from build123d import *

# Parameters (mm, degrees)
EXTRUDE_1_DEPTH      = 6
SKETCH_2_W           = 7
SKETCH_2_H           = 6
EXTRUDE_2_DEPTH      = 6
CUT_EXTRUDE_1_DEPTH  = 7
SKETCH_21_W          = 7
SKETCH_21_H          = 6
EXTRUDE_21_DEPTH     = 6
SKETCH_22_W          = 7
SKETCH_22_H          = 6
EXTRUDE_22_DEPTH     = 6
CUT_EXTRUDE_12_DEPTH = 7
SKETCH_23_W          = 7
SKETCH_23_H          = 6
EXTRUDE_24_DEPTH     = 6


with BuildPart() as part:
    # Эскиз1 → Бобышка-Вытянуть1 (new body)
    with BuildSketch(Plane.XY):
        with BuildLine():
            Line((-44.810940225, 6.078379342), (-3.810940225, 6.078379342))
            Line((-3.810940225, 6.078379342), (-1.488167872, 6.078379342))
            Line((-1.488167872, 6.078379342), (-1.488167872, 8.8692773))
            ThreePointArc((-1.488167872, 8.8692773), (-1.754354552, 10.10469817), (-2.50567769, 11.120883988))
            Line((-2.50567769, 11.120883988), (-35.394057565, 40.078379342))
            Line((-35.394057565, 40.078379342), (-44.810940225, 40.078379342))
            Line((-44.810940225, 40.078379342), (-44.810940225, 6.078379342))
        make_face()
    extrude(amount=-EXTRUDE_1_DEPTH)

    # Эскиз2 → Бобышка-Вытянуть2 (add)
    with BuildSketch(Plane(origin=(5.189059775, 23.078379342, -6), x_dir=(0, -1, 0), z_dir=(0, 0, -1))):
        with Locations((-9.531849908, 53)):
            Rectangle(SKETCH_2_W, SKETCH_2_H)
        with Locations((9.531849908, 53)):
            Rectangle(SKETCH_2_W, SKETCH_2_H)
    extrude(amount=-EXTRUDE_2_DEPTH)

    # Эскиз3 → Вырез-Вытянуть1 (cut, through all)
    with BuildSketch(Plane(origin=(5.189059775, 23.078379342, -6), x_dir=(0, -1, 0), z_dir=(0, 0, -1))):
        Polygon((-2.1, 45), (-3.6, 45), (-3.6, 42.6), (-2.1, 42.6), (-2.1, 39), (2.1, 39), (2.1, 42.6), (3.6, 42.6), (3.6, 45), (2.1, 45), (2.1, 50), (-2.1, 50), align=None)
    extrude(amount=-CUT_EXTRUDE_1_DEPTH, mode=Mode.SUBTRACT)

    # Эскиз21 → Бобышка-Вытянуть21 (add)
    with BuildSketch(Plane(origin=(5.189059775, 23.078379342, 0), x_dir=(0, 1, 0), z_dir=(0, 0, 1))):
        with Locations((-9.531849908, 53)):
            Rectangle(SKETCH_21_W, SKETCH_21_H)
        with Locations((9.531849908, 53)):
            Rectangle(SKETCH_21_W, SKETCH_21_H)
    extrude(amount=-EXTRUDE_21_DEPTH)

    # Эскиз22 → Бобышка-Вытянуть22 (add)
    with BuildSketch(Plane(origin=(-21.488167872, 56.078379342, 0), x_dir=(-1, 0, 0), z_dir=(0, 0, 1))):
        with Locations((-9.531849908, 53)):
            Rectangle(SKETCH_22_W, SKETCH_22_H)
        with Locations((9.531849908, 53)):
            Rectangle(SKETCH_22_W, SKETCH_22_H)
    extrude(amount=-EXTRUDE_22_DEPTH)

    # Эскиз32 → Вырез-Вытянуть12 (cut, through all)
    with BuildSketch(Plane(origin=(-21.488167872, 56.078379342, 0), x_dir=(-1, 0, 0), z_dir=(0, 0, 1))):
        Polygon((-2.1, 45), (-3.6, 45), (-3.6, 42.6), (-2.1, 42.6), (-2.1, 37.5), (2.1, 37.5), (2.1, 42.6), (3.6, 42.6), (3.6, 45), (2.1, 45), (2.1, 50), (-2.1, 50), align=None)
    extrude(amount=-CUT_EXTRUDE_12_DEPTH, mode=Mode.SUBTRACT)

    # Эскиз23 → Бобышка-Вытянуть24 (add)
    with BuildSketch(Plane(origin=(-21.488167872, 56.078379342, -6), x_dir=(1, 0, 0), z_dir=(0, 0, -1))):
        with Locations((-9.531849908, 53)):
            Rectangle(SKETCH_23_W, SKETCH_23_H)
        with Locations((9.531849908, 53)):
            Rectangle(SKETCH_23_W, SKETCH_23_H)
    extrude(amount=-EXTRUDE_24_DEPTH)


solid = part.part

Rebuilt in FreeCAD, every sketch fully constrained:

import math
import FreeCAD as App
import Part
import Sketcher
Q = App.Units.Quantity

doc = App.newDocument("Part")
body = doc.addObject("PartDesign::Body", "Body")

# Sketch on XY plane
sketch1 = body.newObject("Sketcher::SketchObject", "Sketch")
sketch1.AttachmentSupport = (doc.getObject("XY_Plane"), [""])
sketch1.MapMode = "FlatFace"
sketch1.addGeometry(Part.LineSegment(App.Vector(-44.81094, 6.078379, 0), App.Vector(-1.488168, 6.078379, 0)), False)
sketch1.addGeometry(Part.LineSegment(App.Vector(-1.488168, 6.078379, 0), App.Vector(-1.488168, 8.869277, 0)), False)
sketch1.addGeometry(Part.ArcOfCircle(Part.Circle(App.Vector(-4.488168, 8.869277, 0), App.Vector(0, 0, 1), 3), math.radians(0), math.radians(48.636791)), False)
sketch1.addGeometry(Part.LineSegment(App.Vector(-2.505678, 11.120884, 0), App.Vector(-35.394058, 40.078379, 0)), False)
sketch1.addGeometry(Part.LineSegment(App.Vector(-35.394058, 40.078379, 0), App.Vector(-44.81094, 40.078379, 0)), False)
sketch1.addGeometry(Part.LineSegment(App.Vector(-44.81094, 40.078379, 0), App.Vector(-44.81094, 6.078379, 0)), False)
sketch1.addConstraint(Sketcher.Constraint("Coincident", 0, 2, 1, 1))
sketch1.addConstraint(Sketcher.Constraint("Tangent", 1, 2, 2, 1))
sketch1.addConstraint(Sketcher.Constraint("Tangent", 2, 2, 3, 1))
sketch1.addConstraint(Sketcher.Constraint("Coincident", 3, 2, 4, 1))
sketch1.addConstraint(Sketcher.Constraint("Coincident", 4, 2, 5, 1))
sketch1.addConstraint(Sketcher.Constraint("Coincident", 5, 2, 0, 1))
sketch1.addConstraint(Sketcher.Constraint("Horizontal", 0))
sketch1.addConstraint(Sketcher.Constraint("Vertical", 1))
sketch1.addConstraint(Sketcher.Constraint("Horizontal", 4))
sketch1.addConstraint(Sketcher.Constraint("Vertical", 5))
sketch1.addConstraint(Sketcher.Constraint("Radius", 2, Q("3 mm")))
sketch1.addConstraint(Sketcher.Constraint("DistanceY", 5, 2, 5, 1, Q("34 mm")))
sketch1.addConstraint(Sketcher.Constraint("DistanceX", 0, 1, 0, 2, Q("43.322772 mm")))
sketch1.addConstraint(Sketcher.Constraint("DistanceX", 4, 2, 4, 1, Q("9.416883 mm")))
sketch1.addConstraint(Sketcher.Constraint("DistanceY", 1, 1, 1, 2, Q("2.790898 mm")))
sketch1.addConstraint(Sketcher.Constraint("DistanceY", -1, 1, 0, 2, Q("6.078379 mm")))
sketch1.addConstraint(Sketcher.Constraint("DistanceX", 4, 2, -1, 1, Q("44.81094 mm")))
pad1 = body.newObject("PartDesign::Pad", "Pad")
pad1.Profile = sketch1
pad1.Length = 6
pad1.Reversed = True

# Sketch on XY plane
sketch2 = body.newObject("Sketcher::SketchObject", "Sketch001")
sketch2.AttachmentSupport = (doc.getObject("XY_Plane"), [""])
sketch2.MapMode = "FlatFace"
sketch2.AttachmentOffset = App.Placement(App.Vector(0, 0, -6), App.Rotation())
sketch2.addGeometry(Part.LineSegment(App.Vector(-50.81094, 36.110229, 0), App.Vector(-44.81094, 36.110229, 0)), False)
sketch2.addGeometry(Part.LineSegment(App.Vector(-44.81094, 36.110229, 0), App.Vector(-44.81094, 29.110229, 0)), False)
sketch2.addGeometry(Part.LineSegment(App.Vector(-44.81094, 29.110229, 0), App.Vector(-50.81094, 29.110229, 0)), False)
sketch2.addGeometry(Part.LineSegment(App.Vector(-50.81094, 29.110229, 0), App.Vector(-50.81094, 36.110229, 0)), False)
sketch2.addGeometry(Part.LineSegment(App.Vector(-50.81094, 17.046529, 0), App.Vector(-44.81094, 17.046529, 0)), False)
sketch2.addGeometry(Part.LineSegment(App.Vector(-44.81094, 17.046529, 0), App.Vector(-44.81094, 10.046529, 0)), False)
sketch2.addGeometry(Part.LineSegment(App.Vector(-44.81094, 10.046529, 0), App.Vector(-50.81094, 10.046529, 0)), False)
sketch2.addGeometry(Part.LineSegment(App.Vector(-50.81094, 10.046529, 0), App.Vector(-50.81094, 17.046529, 0)), False)
sketch2.addConstraint(Sketcher.Constraint("Coincident", 0, 2, 1, 1))
sketch2.addConstraint(Sketcher.Constraint("Coincident", 1, 2, 2, 1))
sketch2.addConstraint(Sketcher.Constraint("Coincident", 2, 2, 3, 1))
sketch2.addConstraint(Sketcher.Constraint("Coincident", 3, 2, 0, 1))
sketch2.addConstraint(Sketcher.Constraint("Coincident", 4, 2, 5, 1))
sketch2.addConstraint(Sketcher.Constraint("Coincident", 5, 2, 6, 1))
sketch2.addConstraint(Sketcher.Constraint("Coincident", 6, 2, 7, 1))
sketch2.addConstraint(Sketcher.Constraint("Coincident", 7, 2, 4, 1))
sketch2.addConstraint(Sketcher.Constraint("Horizontal", 0))
sketch2.addConstraint(Sketcher.Constraint("Vertical", 1))
sketch2.addConstraint(Sketcher.Constraint("Horizontal", 2))
sketch2.addConstraint(Sketcher.Constraint("Vertical", 3))
sketch2.addConstraint(Sketcher.Constraint("Horizontal", 4))
sketch2.addConstraint(Sketcher.Constraint("Vertical", 5))
sketch2.addConstraint(Sketcher.Constraint("Horizontal", 6))
sketch2.addConstraint(Sketcher.Constraint("Vertical", 7))
sketch2.addConstraint(Sketcher.Constraint("Vertical", 1, 2, 4, 2))
sketch2.addConstraint(Sketcher.Constraint("Vertical", 3, 2, 6, 2))
sketch2.addConstraint(Sketcher.Constraint("Equal", 3, 5))
sketch2.addConstraint(Sketcher.Constraint("DistanceX", 0, 1, 0, 2, Q("6 mm")))
sketch2.addConstraint(Sketcher.Constraint("DistanceY", 1, 2, 1, 1, Q("7 mm")))
sketch2.addConstraint(Sketcher.Constraint("DistanceY", 4, 2, 1, 2, Q("12.0637 mm")))
sketch2.addConstraint(Sketcher.Constraint("DistanceX", 0, 2, -1, 1, Q("44.81094 mm")))
sketch2.addConstraint(Sketcher.Constraint("DistanceY", -1, 1, 0, 2, Q("36.110229 mm")))
pad2 = body.newObject("PartDesign::Pad", "Pad001")
pad2.Profile = sketch2
pad2.Length = 6

# Sketch on XY plane
sketch3 = body.newObject("Sketcher::SketchObject", "Sketch002")
sketch3.AttachmentSupport = (doc.getObject("XY_Plane"), [""])
sketch3.MapMode = "FlatFace"
sketch3.AttachmentOffset = App.Placement(App.Vector(0, 0, -6), App.Rotation())
sketch3.addGeometry(Part.LineSegment(App.Vector(-39.81094, 25.178379, 0), App.Vector(-39.81094, 26.678379, 0)), False)
sketch3.addGeometry(Part.LineSegment(App.Vector(-39.81094, 26.678379, 0), App.Vector(-37.41094, 26.678379, 0)), False)
sketch3.addGeometry(Part.LineSegment(App.Vector(-37.41094, 26.678379, 0), App.Vector(-37.41094, 25.178379, 0)), False)
sketch3.addGeometry(Part.LineSegment(App.Vector(-37.41094, 25.178379, 0), App.Vector(-33.81094, 25.178379, 0)), False)
sketch3.addGeometry(Part.LineSegment(App.Vector(-33.81094, 25.178379, 0), App.Vector(-33.81094, 20.978379, 0)), False)
sketch3.addGeometry(Part.LineSegment(App.Vector(-33.81094, 20.978379, 0), App.Vector(-37.41094, 20.978379, 0)), False)
sketch3.addGeometry(Part.LineSegment(App.Vector(-37.41094, 20.978379, 0), App.Vector(-37.41094, 19.478379, 0)), False)
sketch3.addGeometry(Part.LineSegment(App.Vector(-37.41094, 19.478379, 0), App.Vector(-39.81094, 19.478379, 0)), False)
sketch3.addGeometry(Part.LineSegment(App.Vector(-39.81094, 19.478379, 0), App.Vector(-39.81094, 20.978379, 0)), False)
sketch3.addGeometry(Part.LineSegment(App.Vector(-39.81094, 20.978379, 0), App.Vector(-44.81094, 20.978379, 0)), False)
sketch3.addGeometry(Part.LineSegment(App.Vector(-44.81094, 20.978379, 0), App.Vector(-44.81094, 25.178379, 0)), False)
sketch3.addGeometry(Part.LineSegment(App.Vector(-44.81094, 25.178379, 0), App.Vector(-39.81094, 25.178379, 0)), False)
sketch3.addConstraint(Sketcher.Constraint("Coincident", 0, 2, 1, 1))
sketch3.addConstraint(Sketcher.Constraint("Coincident", 1, 2, 2, 1))
sketch3.addConstraint(Sketcher.Constraint("Coincident", 2, 2, 3, 1))
sketch3.addConstraint(Sketcher.Constraint("Coincident", 3, 2, 4, 1))
sketch3.addConstraint(Sketcher.Constraint("Coincident", 4, 2, 5, 1))
sketch3.addConstraint(Sketcher.Constraint("Coincident", 5, 2, 6, 1))
sketch3.addConstraint(Sketcher.Constraint("Coincident", 6, 2, 7, 1))
sketch3.addConstraint(Sketcher.Constraint("Coincident", 7, 2, 8, 1))
sketch3.addConstraint(Sketcher.Constraint("Coincident", 8, 2, 9, 1))
sketch3.addConstraint(Sketcher.Constraint("Coincident", 9, 2, 10, 1))
sketch3.addConstraint(Sketcher.Constraint("Coincident", 10, 2, 11, 1))
sketch3.addConstraint(Sketcher.Constraint("Coincident", 11, 2, 0, 1))
sketch3.addConstraint(Sketcher.Constraint("Vertical", 0))
sketch3.addConstraint(Sketcher.Constraint("Horizontal", 1))
sketch3.addConstraint(Sketcher.Constraint("Vertical", 2))
sketch3.addConstraint(Sketcher.Constraint("Horizontal", 3))
sketch3.addConstraint(Sketcher.Constraint("Vertical", 4))
sketch3.addConstraint(Sketcher.Constraint("Horizontal", 5))
sketch3.addConstraint(Sketcher.Constraint("Vertical", 6))
sketch3.addConstraint(Sketcher.Constraint("Horizontal", 7))
sketch3.addConstraint(Sketcher.Constraint("Vertical", 8))
sketch3.addConstraint(Sketcher.Constraint("Horizontal", 9))
sketch3.addConstraint(Sketcher.Constraint("Vertical", 10))
sketch3.addConstraint(Sketcher.Constraint("Horizontal", 11))
sketch3.addConstraint(Sketcher.Constraint("Horizontal", 5, 2, 8, 2))
sketch3.addConstraint(Sketcher.Constraint("Horizontal", 3, 2, 10, 2))
sketch3.addConstraint(Sketcher.Constraint("Vertical", 2, 2, 5, 2))
sketch3.addConstraint(Sketcher.Constraint("Vertical", 0, 2, 7, 2))
sketch3.addConstraint(Sketcher.Constraint("Equal", 2, 6))
sketch3.addConstraint(Sketcher.Constraint("DistanceX", 9, 2, 9, 1, Q("5 mm")))
sketch3.addConstraint(Sketcher.Constraint("DistanceX", 1, 1, 1, 2, Q("2.4 mm")))
sketch3.addConstraint(Sketcher.Constraint("DistanceX", 3, 1, 3, 2, Q("3.6 mm")))
sketch3.addConstraint(Sketcher.Constraint("DistanceY", 0, 1, 0, 2, Q("1.5 mm")))
sketch3.addConstraint(Sketcher.Constraint("DistanceY", 4, 2, 4, 1, Q("4.2 mm")))
sketch3.addConstraint(Sketcher.Constraint("DistanceX", 0, 2, -1, 1, Q("39.81094 mm")))
sketch3.addConstraint(Sketcher.Constraint("DistanceY", -1, 1, 0, 2, Q("26.678379 mm")))
pocket1 = body.newObject("PartDesign::Pocket", "Pocket")
pocket1.Profile = sketch3
pocket1.Type = "ThroughAll"
pocket1.Reversed = True

# Sketch on XY plane
sketch4 = body.newObject("Sketcher::SketchObject", "Sketch003")
sketch4.AttachmentSupport = (doc.getObject("XY_Plane"), [""])
sketch4.MapMode = "FlatFace"
sketch4.addGeometry(Part.LineSegment(App.Vector(-50.81094, 10.046529, 0), App.Vector(-44.81094, 10.046529, 0)), False)
sketch4.addGeometry(Part.LineSegment(App.Vector(-44.81094, 10.046529, 0), App.Vector(-44.81094, 17.046529, 0)), False)
sketch4.addGeometry(Part.LineSegment(App.Vector(-44.81094, 17.046529, 0), App.Vector(-50.81094, 17.046529, 0)), False)
sketch4.addGeometry(Part.LineSegment(App.Vector(-50.81094, 17.046529, 0), App.Vector(-50.81094, 10.046529, 0)), False)
sketch4.addGeometry(Part.LineSegment(App.Vector(-50.81094, 29.110229, 0), App.Vector(-44.81094, 29.110229, 0)), False)
sketch4.addGeometry(Part.LineSegment(App.Vector(-44.81094, 29.110229, 0), App.Vector(-44.81094, 36.110229, 0)), False)
sketch4.addGeometry(Part.LineSegment(App.Vector(-44.81094, 36.110229, 0), App.Vector(-50.81094, 36.110229, 0)), False)
sketch4.addGeometry(Part.LineSegment(App.Vector(-50.81094, 36.110229, 0), App.Vector(-50.81094, 29.110229, 0)), False)
sketch4.addConstraint(Sketcher.Constraint("Coincident", 0, 2, 1, 1))
sketch4.addConstraint(Sketcher.Constraint("Coincident", 1, 2, 2, 1))
sketch4.addConstraint(Sketcher.Constraint("Coincident", 2, 2, 3, 1))
sketch4.addConstraint(Sketcher.Constraint("Coincident", 3, 2, 0, 1))
sketch4.addConstraint(Sketcher.Constraint("Coincident", 4, 2, 5, 1))
sketch4.addConstraint(Sketcher.Constraint("Coincident", 5, 2, 6, 1))
sketch4.addConstraint(Sketcher.Constraint("Coincident", 6, 2, 7, 1))
sketch4.addConstraint(Sketcher.Constraint("Coincident", 7, 2, 4, 1))
sketch4.addConstraint(Sketcher.Constraint("Horizontal", 0))
sketch4.addConstraint(Sketcher.Constraint("Vertical", 1))
sketch4.addConstraint(Sketcher.Constraint("Horizontal", 2))
sketch4.addConstraint(Sketcher.Constraint("Vertical", 3))
sketch4.addConstraint(Sketcher.Constraint("Horizontal", 4))
sketch4.addConstraint(Sketcher.Constraint("Vertical", 5))
sketch4.addConstraint(Sketcher.Constraint("Horizontal", 6))
sketch4.addConstraint(Sketcher.Constraint("Vertical", 7))
sketch4.addConstraint(Sketcher.Constraint("Vertical", 1, 2, 4, 2))
sketch4.addConstraint(Sketcher.Constraint("Vertical", 3, 2, 6, 2))
sketch4.addConstraint(Sketcher.Constraint("Equal", 3, 5))
sketch4.addConstraint(Sketcher.Constraint("DistanceX", 0, 1, 0, 2, Q("6 mm")))
sketch4.addConstraint(Sketcher.Constraint("DistanceY", 1, 1, 1, 2, Q("7 mm")))
sketch4.addConstraint(Sketcher.Constraint("DistanceY", 1, 2, 4, 2, Q("12.0637 mm")))
sketch4.addConstraint(Sketcher.Constraint("DistanceX", 0, 2, -1, 1, Q("44.81094 mm")))
sketch4.addConstraint(Sketcher.Constraint("DistanceY", -1, 1, 0, 2, Q("10.046529 mm")))
pad3 = body.newObject("PartDesign::Pad", "Pad002")
pad3.Profile = sketch4
pad3.Length = 6
pad3.Reversed = True

# Sketch on XY plane
sketch5 = body.newObject("Sketcher::SketchObject", "Sketch004")
sketch5.AttachmentSupport = (doc.getObject("XY_Plane"), [""])
sketch5.MapMode = "FlatFace"
sketch5.addGeometry(Part.LineSegment(App.Vector(-8.456318, 0.078379, 0), App.Vector(-8.456318, 6.078379, 0)), False)
sketch5.addGeometry(Part.LineSegment(App.Vector(-8.456318, 6.078379, 0), App.Vector(-15.456318, 6.078379, 0)), False)
sketch5.addGeometry(Part.LineSegment(App.Vector(-15.456318, 6.078379, 0), App.Vector(-15.456318, 0.078379, 0)), False)
sketch5.addGeometry(Part.LineSegment(App.Vector(-15.456318, 0.078379, 0), App.Vector(-8.456318, 0.078379, 0)), False)
sketch5.addGeometry(Part.LineSegment(App.Vector(-27.520018, 0.078379, 0), App.Vector(-27.520018, 6.078379, 0)), False)
sketch5.addGeometry(Part.LineSegment(App.Vector(-27.520018, 6.078379, 0), App.Vector(-34.520018, 6.078379, 0)), False)
sketch5.addGeometry(Part.LineSegment(App.Vector(-34.520018, 6.078379, 0), App.Vector(-34.520018, 0.078379, 0)), False)
sketch5.addGeometry(Part.LineSegment(App.Vector(-34.520018, 0.078379, 0), App.Vector(-27.520018, 0.078379, 0)), False)
sketch5.addConstraint(Sketcher.Constraint("Coincident", 0, 2, 1, 1))
sketch5.addConstraint(Sketcher.Constraint("Coincident", 1, 2, 2, 1))
sketch5.addConstraint(Sketcher.Constraint("Coincident", 2, 2, 3, 1))
sketch5.addConstraint(Sketcher.Constraint("Coincident", 3, 2, 0, 1))
sketch5.addConstraint(Sketcher.Constraint("Coincident", 4, 2, 5, 1))
sketch5.addConstraint(Sketcher.Constraint("Coincident", 5, 2, 6, 1))
sketch5.addConstraint(Sketcher.Constraint("Coincident", 6, 2, 7, 1))
sketch5.addConstraint(Sketcher.Constraint("Coincident", 7, 2, 4, 1))
sketch5.addConstraint(Sketcher.Constraint("Vertical", 0))
sketch5.addConstraint(Sketcher.Constraint("Horizontal", 1))
sketch5.addConstraint(Sketcher.Constraint("Vertical", 2))
sketch5.addConstraint(Sketcher.Constraint("Horizontal", 3))
sketch5.addConstraint(Sketcher.Constraint("Vertical", 4))
sketch5.addConstraint(Sketcher.Constraint("Horizontal", 5))
sketch5.addConstraint(Sketcher.Constraint("Vertical", 6))
sketch5.addConstraint(Sketcher.Constraint("Horizontal", 7))
sketch5.addConstraint(Sketcher.Constraint("Horizontal", 1, 2, 4, 2))
sketch5.addConstraint(Sketcher.Constraint("Horizontal", 3, 2, 6, 2))
sketch5.addConstraint(Sketcher.Constraint("Equal", 3, 5))
sketch5.addConstraint(Sketcher.Constraint("DistanceX", 1, 2, 1, 1, Q("7 mm")))
sketch5.addConstraint(Sketcher.Constraint("DistanceY", 0, 1, 0, 2, Q("6 mm")))
sketch5.addConstraint(Sketcher.Constraint("DistanceX", 4, 2, 1, 2, Q("12.0637 mm")))
sketch5.addConstraint(Sketcher.Constraint("DistanceY", -1, 1, 0, 2, Q("6.078379 mm")))
sketch5.addConstraint(Sketcher.Constraint("DistanceX", 0, 2, -1, 1, Q("8.456318 mm")))
pad4 = body.newObject("PartDesign::Pad", "Pad003")
pad4.Profile = sketch5
pad4.Length = 6
pad4.Reversed = True

# Sketch on XY plane
sketch6 = body.newObject("Sketcher::SketchObject", "Sketch005")
sketch6.AttachmentSupport = (doc.getObject("XY_Plane"), [""])
sketch6.MapMode = "FlatFace"
sketch6.addGeometry(Part.LineSegment(App.Vector(-19.388168, 11.078379, 0), App.Vector(-17.888168, 11.078379, 0)), False)
sketch6.addGeometry(Part.LineSegment(App.Vector(-17.888168, 11.078379, 0), App.Vector(-17.888168, 13.478379, 0)), False)
sketch6.addGeometry(Part.LineSegment(App.Vector(-17.888168, 13.478379, 0), App.Vector(-19.388168, 13.478379, 0)), False)
sketch6.addGeometry(Part.LineSegment(App.Vector(-19.388168, 13.478379, 0), App.Vector(-19.388168, 18.578379, 0)), False)
sketch6.addGeometry(Part.LineSegment(App.Vector(-19.388168, 18.578379, 0), App.Vector(-23.588168, 18.578379, 0)), False)
sketch6.addGeometry(Part.LineSegment(App.Vector(-23.588168, 18.578379, 0), App.Vector(-23.588168, 13.478379, 0)), False)
sketch6.addGeometry(Part.LineSegment(App.Vector(-23.588168, 13.478379, 0), App.Vector(-25.088168, 13.478379, 0)), False)
sketch6.addGeometry(Part.LineSegment(App.Vector(-25.088168, 13.478379, 0), App.Vector(-25.088168, 11.078379, 0)), False)
sketch6.addGeometry(Part.LineSegment(App.Vector(-25.088168, 11.078379, 0), App.Vector(-23.588168, 11.078379, 0)), False)
sketch6.addGeometry(Part.LineSegment(App.Vector(-23.588168, 11.078379, 0), App.Vector(-23.588168, 6.078379, 0)), False)
sketch6.addGeometry(Part.LineSegment(App.Vector(-23.588168, 6.078379, 0), App.Vector(-19.388168, 6.078379, 0)), False)
sketch6.addGeometry(Part.LineSegment(App.Vector(-19.388168, 6.078379, 0), App.Vector(-19.388168, 11.078379, 0)), False)
sketch6.addConstraint(Sketcher.Constraint("Coincident", 0, 2, 1, 1))
sketch6.addConstraint(Sketcher.Constraint("Coincident", 1, 2, 2, 1))
sketch6.addConstraint(Sketcher.Constraint("Coincident", 2, 2, 3, 1))
sketch6.addConstraint(Sketcher.Constraint("Coincident", 3, 2, 4, 1))
sketch6.addConstraint(Sketcher.Constraint("Coincident", 4, 2, 5, 1))
sketch6.addConstraint(Sketcher.Constraint("Coincident", 5, 2, 6, 1))
sketch6.addConstraint(Sketcher.Constraint("Coincident", 6, 2, 7, 1))
sketch6.addConstraint(Sketcher.Constraint("Coincident", 7, 2, 8, 1))
sketch6.addConstraint(Sketcher.Constraint("Coincident", 8, 2, 9, 1))
sketch6.addConstraint(Sketcher.Constraint("Coincident", 9, 2, 10, 1))
sketch6.addConstraint(Sketcher.Constraint("Coincident", 10, 2, 11, 1))
sketch6.addConstraint(Sketcher.Constraint("Coincident", 11, 2, 0, 1))
sketch6.addConstraint(Sketcher.Constraint("Horizontal", 0))
sketch6.addConstraint(Sketcher.Constraint("Vertical", 1))
sketch6.addConstraint(Sketcher.Constraint("Horizontal", 2))
sketch6.addConstraint(Sketcher.Constraint("Vertical", 3))
sketch6.addConstraint(Sketcher.Constraint("Horizontal", 4))
sketch6.addConstraint(Sketcher.Constraint("Vertical", 5))
sketch6.addConstraint(Sketcher.Constraint("Horizontal", 6))
sketch6.addConstraint(Sketcher.Constraint("Vertical", 7))
sketch6.addConstraint(Sketcher.Constraint("Horizontal", 8))
sketch6.addConstraint(Sketcher.Constraint("Vertical", 9))
sketch6.addConstraint(Sketcher.Constraint("Horizontal", 10))
sketch6.addConstraint(Sketcher.Constraint("Vertical", 11))
sketch6.addConstraint(Sketcher.Constraint("Horizontal", 2, 2, 5, 2))
sketch6.addConstraint(Sketcher.Constraint("Horizontal", 0, 2, 7, 2))
sketch6.addConstraint(Sketcher.Constraint("Vertical", 5, 2, 8, 2))
sketch6.addConstraint(Sketcher.Constraint("Vertical", 3, 2, 10, 2))
sketch6.addConstraint(Sketcher.Constraint("Equal", 2, 6))
sketch6.addConstraint(Sketcher.Constraint("DistanceY", 9, 2, 9, 1, Q("5 mm")))
sketch6.addConstraint(Sketcher.Constraint("DistanceX", 0, 1, 0, 2, Q("1.5 mm")))
sketch6.addConstraint(Sketcher.Constraint("DistanceX", 4, 2, 4, 1, Q("4.2 mm")))
sketch6.addConstraint(Sketcher.Constraint("DistanceY", 1, 1, 1, 2, Q("2.4 mm")))
sketch6.addConstraint(Sketcher.Constraint("DistanceY", 3, 1, 3, 2, Q("5.1 mm")))
sketch6.addConstraint(Sketcher.Constraint("DistanceY", -1, 1, 0, 2, Q("11.078379 mm")))
sketch6.addConstraint(Sketcher.Constraint("DistanceX", 0, 2, -1, 1, Q("17.888168 mm")))
pocket2 = body.newObject("PartDesign::Pocket", "Pocket001")
pocket2.Profile = sketch6
pocket2.Type = "ThroughAll"

# Sketch on XY plane
sketch7 = body.newObject("Sketcher::SketchObject", "Sketch006")
sketch7.AttachmentSupport = (doc.getObject("XY_Plane"), [""])
sketch7.MapMode = "FlatFace"
sketch7.AttachmentOffset = App.Placement(App.Vector(0, 0, -6), App.Rotation())
sketch7.addGeometry(Part.LineSegment(App.Vector(-34.520018, 0.078379, 0), App.Vector(-34.520018, 6.078379, 0)), False)
sketch7.addGeometry(Part.LineSegment(App.Vector(-34.520018, 6.078379, 0), App.Vector(-27.520018, 6.078379, 0)), False)
sketch7.addGeometry(Part.LineSegment(App.Vector(-27.520018, 6.078379, 0), App.Vector(-27.520018, 0.078379, 0)), False)
sketch7.addGeometry(Part.LineSegment(App.Vector(-27.520018, 0.078379, 0), App.Vector(-34.520018, 0.078379, 0)), False)
sketch7.addGeometry(Part.LineSegment(App.Vector(-15.456318, 0.078379, 0), App.Vector(-15.456318, 6.078379, 0)), False)
sketch7.addGeometry(Part.LineSegment(App.Vector(-15.456318, 6.078379, 0), App.Vector(-8.456318, 6.078379, 0)), False)
sketch7.addGeometry(Part.LineSegment(App.Vector(-8.456318, 6.078379, 0), App.Vector(-8.456318, 0.078379, 0)), False)
sketch7.addGeometry(Part.LineSegment(App.Vector(-8.456318, 0.078379, 0), App.Vector(-15.456318, 0.078379, 0)), False)
sketch7.addConstraint(Sketcher.Constraint("Coincident", 0, 2, 1, 1))
sketch7.addConstraint(Sketcher.Constraint("Coincident", 1, 2, 2, 1))
sketch7.addConstraint(Sketcher.Constraint("Coincident", 2, 2, 3, 1))
sketch7.addConstraint(Sketcher.Constraint("Coincident", 3, 2, 0, 1))
sketch7.addConstraint(Sketcher.Constraint("Coincident", 4, 2, 5, 1))
sketch7.addConstraint(Sketcher.Constraint("Coincident", 5, 2, 6, 1))
sketch7.addConstraint(Sketcher.Constraint("Coincident", 6, 2, 7, 1))
sketch7.addConstraint(Sketcher.Constraint("Coincident", 7, 2, 4, 1))
sketch7.addConstraint(Sketcher.Constraint("Vertical", 0))
sketch7.addConstraint(Sketcher.Constraint("Horizontal", 1))
sketch7.addConstraint(Sketcher.Constraint("Vertical", 2))
sketch7.addConstraint(Sketcher.Constraint("Horizontal", 3))
sketch7.addConstraint(Sketcher.Constraint("Vertical", 4))
sketch7.addConstraint(Sketcher.Constraint("Horizontal", 5))
sketch7.addConstraint(Sketcher.Constraint("Vertical", 6))
sketch7.addConstraint(Sketcher.Constraint("Horizontal", 7))
sketch7.addConstraint(Sketcher.Constraint("Horizontal", 1, 2, 4, 2))
sketch7.addConstraint(Sketcher.Constraint("Horizontal", 3, 2, 6, 2))
sketch7.addConstraint(Sketcher.Constraint("Equal", 3, 5))
sketch7.addConstraint(Sketcher.Constraint("DistanceX", 1, 1, 1, 2, Q("7 mm")))
sketch7.addConstraint(Sketcher.Constraint("DistanceY", 0, 1, 0, 2, Q("6 mm")))
sketch7.addConstraint(Sketcher.Constraint("DistanceX", 1, 2, 4, 2, Q("12.0637 mm")))
sketch7.addConstraint(Sketcher.Constraint("DistanceY", -1, 1, 0, 2, Q("6.078379 mm")))
sketch7.addConstraint(Sketcher.Constraint("DistanceX", 0, 2, -1, 1, Q("34.520018 mm")))
pad5 = body.newObject("PartDesign::Pad", "Pad004")
pad5.Profile = sketch7
pad5.Length = 6

doc.recompute()
